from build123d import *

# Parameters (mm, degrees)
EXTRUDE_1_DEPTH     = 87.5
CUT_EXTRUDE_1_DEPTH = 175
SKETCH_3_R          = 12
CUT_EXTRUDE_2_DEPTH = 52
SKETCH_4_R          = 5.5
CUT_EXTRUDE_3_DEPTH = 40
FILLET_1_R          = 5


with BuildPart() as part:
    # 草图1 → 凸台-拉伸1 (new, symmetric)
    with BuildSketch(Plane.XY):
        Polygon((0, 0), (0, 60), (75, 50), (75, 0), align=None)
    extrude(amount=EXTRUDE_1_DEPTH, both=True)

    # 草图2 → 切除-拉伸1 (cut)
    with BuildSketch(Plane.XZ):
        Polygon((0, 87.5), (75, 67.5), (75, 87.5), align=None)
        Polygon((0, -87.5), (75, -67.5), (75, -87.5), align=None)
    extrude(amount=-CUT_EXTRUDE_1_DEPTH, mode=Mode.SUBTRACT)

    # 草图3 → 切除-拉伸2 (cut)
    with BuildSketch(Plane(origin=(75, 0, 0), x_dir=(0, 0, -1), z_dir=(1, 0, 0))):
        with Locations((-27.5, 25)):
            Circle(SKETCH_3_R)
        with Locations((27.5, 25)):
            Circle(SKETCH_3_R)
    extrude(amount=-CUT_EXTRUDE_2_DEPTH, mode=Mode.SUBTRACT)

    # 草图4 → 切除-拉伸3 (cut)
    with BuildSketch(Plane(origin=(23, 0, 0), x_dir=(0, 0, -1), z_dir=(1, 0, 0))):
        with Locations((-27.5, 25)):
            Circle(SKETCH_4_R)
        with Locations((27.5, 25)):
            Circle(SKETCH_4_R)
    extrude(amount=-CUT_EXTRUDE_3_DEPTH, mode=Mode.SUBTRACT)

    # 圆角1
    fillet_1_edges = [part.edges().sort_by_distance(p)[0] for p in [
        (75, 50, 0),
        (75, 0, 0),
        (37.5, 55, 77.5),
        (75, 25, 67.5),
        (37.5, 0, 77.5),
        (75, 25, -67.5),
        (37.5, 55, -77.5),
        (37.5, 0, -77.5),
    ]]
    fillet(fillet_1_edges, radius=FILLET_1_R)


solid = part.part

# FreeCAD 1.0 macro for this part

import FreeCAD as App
import Part
import Sketcher


def edges_at(feature, points):
    """Names of the edges that pass closest to the given points."""
    edges = feature.Shape.Edges
    near = lambda p: min(range(len(edges)), key=lambda i: edges[i].distToShape(Part.Vertex(*p))[0])
    return sorted({f"Edge{near(p) + 1}" for p in points})

doc = App.newDocument("Part")
body = doc.addObject("PartDesign::Body", "Body")

# Sketch on XY plane
sketch1 = doc.addObject("Sketcher::SketchObject", "Sketch")
body.addObject(sketch1)
sketch1.AttachmentSupport = (doc.XY_Plane, [""])
sketch1.MapMode = "FlatFace"
sketch1.addGeometry([
    Part.LineSegment(App.Vector(0, 60, 0), App.Vector(0, 0, 0)),
    Part.LineSegment(App.Vector(0, 0, 0), App.Vector(75, 0, 0)),
    Part.LineSegment(App.Vector(75, 0, 0), App.Vector(75, 50, 0)),
    Part.LineSegment(App.Vector(75, 50, 0), App.Vector(0, 60, 0)),
], False)
sketch1.addConstraint([
    Sketcher.Constraint("Coincident", 0, 2, 1, 1),
    Sketcher.Constraint("Coincident", 1, 2, 2, 1),
    Sketcher.Constraint("Coincident", 2, 2, 3, 1),
    Sketcher.Constraint("Coincident", 3, 2, 0, 1),
    Sketcher.Constraint("Vertical", 0),
    Sketcher.Constraint("Horizontal", 1),
    Sketcher.Constraint("Vertical", 2),
    Sketcher.Constraint("Coincident", 0, 2, -1, 1),
    Sketcher.Constraint("DistanceX", 1, 1, 1, 2, 75.0),
    Sketcher.Constraint("DistanceY", 0, 2, 0, 1, 60.0),
    Sketcher.Constraint("DistanceY", 2, 1, 2, 2, 50.0),
])
pad1 = doc.addObject("PartDesign::Pad", "Pad")
body.addObject(pad1)
pad1.Profile = sketch1
pad1.Length = 175
pad1.Midplane = True

# Sketch on XZ plane
sketch2 = doc.addObject("Sketcher::SketchObject", "Sketch001")
body.addObject(sketch2)
sketch2.AttachmentSupport = (doc.XZ_Plane, [""])
sketch2.MapMode = "FlatFace"
sketch2.addGeometry([
    Part.LineSegment(App.Vector(0, 88, 0), App.Vector(75, 68, 0)),  # 0
    Part.LineSegment(App.Vector(75, 68, 0), App.Vector(75, 88, 0)),  # 1
    Part.LineSegment(App.Vector(75, 88, 0), App.Vector(0, 88, 0)),  # 2
    Part.LineSegment(App.Vector(75, -68, 0), App.Vector(0, -88, 0)),  # 3
    Part.LineSegment(App.Vector(0, -88, 0), App.Vector(75, -88, 0)),  # 4
    Part.LineSegment(App.Vector(75, -88, 0), App.Vector(75, -68, 0)),  # 5
], False)
sketch2.addConstraint([
    Sketcher.Constraint("Coincident", 0, 2, 1, 1),
    Sketcher.Constraint("Coincident", 1, 2, 2, 1),
    Sketcher.Constraint("Coincident", 2, 2, 0, 1),
    Sketcher.Constraint("Coincident", 3, 2, 4, 1),
    Sketcher.Constraint("Coincident", 4, 2, 5, 1),
    Sketcher.Constraint("Coincident", 5, 2, 3, 1),
    Sketcher.Constraint("Vertical", 1),
    Sketcher.Constraint("Horizontal", 2),
    Sketcher.Constraint("Horizontal", 4),
    Sketcher.Constraint("Vertical", 5),
    Sketcher.Constraint("Symmetric", 2, 2, 3, 2, -1, 1),
    Sketcher.Constraint("Symmetric", 0, 2, 5, 2, -1),
    Sketcher.Constraint("PointOnObject", 2, 2, -2),
    Sketcher.Constraint("DistanceX", 2, 2, 2, 1, 75.0),
    Sketcher.Constraint("DistanceY", 1, 1, 1, 2, 20.0),
    Sketcher.Constraint("DistanceY", 3, 2, 0, 2, 155.0),
])
pocket1 = doc.addObject("PartDesign::Pocket", "Pocket")
body.addObject(pocket1)
pocket1.Profile = sketch2
pocket1.Length = 175

# Sketch on YZ plane
sketch3 = doc.addObject("Sketcher::SketchObject", "Sketch002")
body.addObject(sketch3)
sketch3.AttachmentSupport = (doc.YZ_Plane, [""])
sketch3.MapMode = "FlatFace"
sketch3.AttachmentOffset = App.Placement(App.Vector(0, 0, 75), App.Rotation())
sketch3.addGeometry([
    Part.Circle(App.Vector(25, 28, 0), App.Vector(0, 0, 1), 12),
    Part.Circle(App.Vector(25, -28, 0), App.Vector(0, 0, 1), 12),
], False)
sketch3.addConstraint([
    Sketcher.Constraint("Equal", 0, 1),
    Sketcher.Constraint("Symmetric", 0, 3, 1, 3, -1),
    Sketcher.Constraint("Diameter", 0, 24.0),
    Sketcher.Constraint("DistanceX", -1, 1, 0, 3, 25.0),
    Sketcher.Constraint("DistanceY", 1, 3, 0, 3, 55.0),
])
pocket2 = doc.addObject("PartDesign::Pocket", "Pocket001")
body.addObject(pocket2)
pocket2.Profile = sketch3
pocket2.Length = 52

# Sketch on YZ plane
sketch4 = doc.addObject("Sketcher::SketchObject", "Sketch003")
body.addObject(sketch4)
sketch4.AttachmentSupport = (doc.YZ_Plane, [""])
sketch4.MapMode = "FlatFace"
sketch4.AttachmentOffset = App.Placement(App.Vector(0, 0, 23), App.Rotation())
sketch4.addGeometry([
    Part.Circle(App.Vector(25, 28, 0), App.Vector(0, 0, 1), 6),
    Part.Circle(App.Vector(25, -28, 0), App.Vector(0, 0, 1), 6),
], False)
sketch4.addConstraint([
    Sketcher.Constraint("Equal", 0, 1),
    Sketcher.Constraint("Symmetric", 0, 3, 1, 3, -1),
    Sketcher.Constraint("Diameter", 0, 11.0),
    Sketcher.Constraint("DistanceX", -1, 1, 0, 3, 25.0),
    Sketcher.Constraint("DistanceY", 1, 3, 0, 3, 55.0),
])
pocket3 = doc.addObject("PartDesign::Pocket", "Pocket002")
body.addObject(pocket3)
pocket3.Profile = sketch4
pocket3.Length = 40
doc.recompute()

fillet = doc.addObject("PartDesign::Fillet", "Fillet")
body.addObject(fillet)
fillet.Base = (pocket3, edges_at(pocket3, [
    (75, 50, 0),
    (75, 0, 0),
    (37.5, 55, 77.5),
    (75, 25, 67.5),
    (37.5, 0, 77.5),
    (75, 25, -67.5),
    (37.5, 55, -77.5),
    (37.5, 0, -77.5),
]))
fillet.Radius = 5

doc.recompute()
